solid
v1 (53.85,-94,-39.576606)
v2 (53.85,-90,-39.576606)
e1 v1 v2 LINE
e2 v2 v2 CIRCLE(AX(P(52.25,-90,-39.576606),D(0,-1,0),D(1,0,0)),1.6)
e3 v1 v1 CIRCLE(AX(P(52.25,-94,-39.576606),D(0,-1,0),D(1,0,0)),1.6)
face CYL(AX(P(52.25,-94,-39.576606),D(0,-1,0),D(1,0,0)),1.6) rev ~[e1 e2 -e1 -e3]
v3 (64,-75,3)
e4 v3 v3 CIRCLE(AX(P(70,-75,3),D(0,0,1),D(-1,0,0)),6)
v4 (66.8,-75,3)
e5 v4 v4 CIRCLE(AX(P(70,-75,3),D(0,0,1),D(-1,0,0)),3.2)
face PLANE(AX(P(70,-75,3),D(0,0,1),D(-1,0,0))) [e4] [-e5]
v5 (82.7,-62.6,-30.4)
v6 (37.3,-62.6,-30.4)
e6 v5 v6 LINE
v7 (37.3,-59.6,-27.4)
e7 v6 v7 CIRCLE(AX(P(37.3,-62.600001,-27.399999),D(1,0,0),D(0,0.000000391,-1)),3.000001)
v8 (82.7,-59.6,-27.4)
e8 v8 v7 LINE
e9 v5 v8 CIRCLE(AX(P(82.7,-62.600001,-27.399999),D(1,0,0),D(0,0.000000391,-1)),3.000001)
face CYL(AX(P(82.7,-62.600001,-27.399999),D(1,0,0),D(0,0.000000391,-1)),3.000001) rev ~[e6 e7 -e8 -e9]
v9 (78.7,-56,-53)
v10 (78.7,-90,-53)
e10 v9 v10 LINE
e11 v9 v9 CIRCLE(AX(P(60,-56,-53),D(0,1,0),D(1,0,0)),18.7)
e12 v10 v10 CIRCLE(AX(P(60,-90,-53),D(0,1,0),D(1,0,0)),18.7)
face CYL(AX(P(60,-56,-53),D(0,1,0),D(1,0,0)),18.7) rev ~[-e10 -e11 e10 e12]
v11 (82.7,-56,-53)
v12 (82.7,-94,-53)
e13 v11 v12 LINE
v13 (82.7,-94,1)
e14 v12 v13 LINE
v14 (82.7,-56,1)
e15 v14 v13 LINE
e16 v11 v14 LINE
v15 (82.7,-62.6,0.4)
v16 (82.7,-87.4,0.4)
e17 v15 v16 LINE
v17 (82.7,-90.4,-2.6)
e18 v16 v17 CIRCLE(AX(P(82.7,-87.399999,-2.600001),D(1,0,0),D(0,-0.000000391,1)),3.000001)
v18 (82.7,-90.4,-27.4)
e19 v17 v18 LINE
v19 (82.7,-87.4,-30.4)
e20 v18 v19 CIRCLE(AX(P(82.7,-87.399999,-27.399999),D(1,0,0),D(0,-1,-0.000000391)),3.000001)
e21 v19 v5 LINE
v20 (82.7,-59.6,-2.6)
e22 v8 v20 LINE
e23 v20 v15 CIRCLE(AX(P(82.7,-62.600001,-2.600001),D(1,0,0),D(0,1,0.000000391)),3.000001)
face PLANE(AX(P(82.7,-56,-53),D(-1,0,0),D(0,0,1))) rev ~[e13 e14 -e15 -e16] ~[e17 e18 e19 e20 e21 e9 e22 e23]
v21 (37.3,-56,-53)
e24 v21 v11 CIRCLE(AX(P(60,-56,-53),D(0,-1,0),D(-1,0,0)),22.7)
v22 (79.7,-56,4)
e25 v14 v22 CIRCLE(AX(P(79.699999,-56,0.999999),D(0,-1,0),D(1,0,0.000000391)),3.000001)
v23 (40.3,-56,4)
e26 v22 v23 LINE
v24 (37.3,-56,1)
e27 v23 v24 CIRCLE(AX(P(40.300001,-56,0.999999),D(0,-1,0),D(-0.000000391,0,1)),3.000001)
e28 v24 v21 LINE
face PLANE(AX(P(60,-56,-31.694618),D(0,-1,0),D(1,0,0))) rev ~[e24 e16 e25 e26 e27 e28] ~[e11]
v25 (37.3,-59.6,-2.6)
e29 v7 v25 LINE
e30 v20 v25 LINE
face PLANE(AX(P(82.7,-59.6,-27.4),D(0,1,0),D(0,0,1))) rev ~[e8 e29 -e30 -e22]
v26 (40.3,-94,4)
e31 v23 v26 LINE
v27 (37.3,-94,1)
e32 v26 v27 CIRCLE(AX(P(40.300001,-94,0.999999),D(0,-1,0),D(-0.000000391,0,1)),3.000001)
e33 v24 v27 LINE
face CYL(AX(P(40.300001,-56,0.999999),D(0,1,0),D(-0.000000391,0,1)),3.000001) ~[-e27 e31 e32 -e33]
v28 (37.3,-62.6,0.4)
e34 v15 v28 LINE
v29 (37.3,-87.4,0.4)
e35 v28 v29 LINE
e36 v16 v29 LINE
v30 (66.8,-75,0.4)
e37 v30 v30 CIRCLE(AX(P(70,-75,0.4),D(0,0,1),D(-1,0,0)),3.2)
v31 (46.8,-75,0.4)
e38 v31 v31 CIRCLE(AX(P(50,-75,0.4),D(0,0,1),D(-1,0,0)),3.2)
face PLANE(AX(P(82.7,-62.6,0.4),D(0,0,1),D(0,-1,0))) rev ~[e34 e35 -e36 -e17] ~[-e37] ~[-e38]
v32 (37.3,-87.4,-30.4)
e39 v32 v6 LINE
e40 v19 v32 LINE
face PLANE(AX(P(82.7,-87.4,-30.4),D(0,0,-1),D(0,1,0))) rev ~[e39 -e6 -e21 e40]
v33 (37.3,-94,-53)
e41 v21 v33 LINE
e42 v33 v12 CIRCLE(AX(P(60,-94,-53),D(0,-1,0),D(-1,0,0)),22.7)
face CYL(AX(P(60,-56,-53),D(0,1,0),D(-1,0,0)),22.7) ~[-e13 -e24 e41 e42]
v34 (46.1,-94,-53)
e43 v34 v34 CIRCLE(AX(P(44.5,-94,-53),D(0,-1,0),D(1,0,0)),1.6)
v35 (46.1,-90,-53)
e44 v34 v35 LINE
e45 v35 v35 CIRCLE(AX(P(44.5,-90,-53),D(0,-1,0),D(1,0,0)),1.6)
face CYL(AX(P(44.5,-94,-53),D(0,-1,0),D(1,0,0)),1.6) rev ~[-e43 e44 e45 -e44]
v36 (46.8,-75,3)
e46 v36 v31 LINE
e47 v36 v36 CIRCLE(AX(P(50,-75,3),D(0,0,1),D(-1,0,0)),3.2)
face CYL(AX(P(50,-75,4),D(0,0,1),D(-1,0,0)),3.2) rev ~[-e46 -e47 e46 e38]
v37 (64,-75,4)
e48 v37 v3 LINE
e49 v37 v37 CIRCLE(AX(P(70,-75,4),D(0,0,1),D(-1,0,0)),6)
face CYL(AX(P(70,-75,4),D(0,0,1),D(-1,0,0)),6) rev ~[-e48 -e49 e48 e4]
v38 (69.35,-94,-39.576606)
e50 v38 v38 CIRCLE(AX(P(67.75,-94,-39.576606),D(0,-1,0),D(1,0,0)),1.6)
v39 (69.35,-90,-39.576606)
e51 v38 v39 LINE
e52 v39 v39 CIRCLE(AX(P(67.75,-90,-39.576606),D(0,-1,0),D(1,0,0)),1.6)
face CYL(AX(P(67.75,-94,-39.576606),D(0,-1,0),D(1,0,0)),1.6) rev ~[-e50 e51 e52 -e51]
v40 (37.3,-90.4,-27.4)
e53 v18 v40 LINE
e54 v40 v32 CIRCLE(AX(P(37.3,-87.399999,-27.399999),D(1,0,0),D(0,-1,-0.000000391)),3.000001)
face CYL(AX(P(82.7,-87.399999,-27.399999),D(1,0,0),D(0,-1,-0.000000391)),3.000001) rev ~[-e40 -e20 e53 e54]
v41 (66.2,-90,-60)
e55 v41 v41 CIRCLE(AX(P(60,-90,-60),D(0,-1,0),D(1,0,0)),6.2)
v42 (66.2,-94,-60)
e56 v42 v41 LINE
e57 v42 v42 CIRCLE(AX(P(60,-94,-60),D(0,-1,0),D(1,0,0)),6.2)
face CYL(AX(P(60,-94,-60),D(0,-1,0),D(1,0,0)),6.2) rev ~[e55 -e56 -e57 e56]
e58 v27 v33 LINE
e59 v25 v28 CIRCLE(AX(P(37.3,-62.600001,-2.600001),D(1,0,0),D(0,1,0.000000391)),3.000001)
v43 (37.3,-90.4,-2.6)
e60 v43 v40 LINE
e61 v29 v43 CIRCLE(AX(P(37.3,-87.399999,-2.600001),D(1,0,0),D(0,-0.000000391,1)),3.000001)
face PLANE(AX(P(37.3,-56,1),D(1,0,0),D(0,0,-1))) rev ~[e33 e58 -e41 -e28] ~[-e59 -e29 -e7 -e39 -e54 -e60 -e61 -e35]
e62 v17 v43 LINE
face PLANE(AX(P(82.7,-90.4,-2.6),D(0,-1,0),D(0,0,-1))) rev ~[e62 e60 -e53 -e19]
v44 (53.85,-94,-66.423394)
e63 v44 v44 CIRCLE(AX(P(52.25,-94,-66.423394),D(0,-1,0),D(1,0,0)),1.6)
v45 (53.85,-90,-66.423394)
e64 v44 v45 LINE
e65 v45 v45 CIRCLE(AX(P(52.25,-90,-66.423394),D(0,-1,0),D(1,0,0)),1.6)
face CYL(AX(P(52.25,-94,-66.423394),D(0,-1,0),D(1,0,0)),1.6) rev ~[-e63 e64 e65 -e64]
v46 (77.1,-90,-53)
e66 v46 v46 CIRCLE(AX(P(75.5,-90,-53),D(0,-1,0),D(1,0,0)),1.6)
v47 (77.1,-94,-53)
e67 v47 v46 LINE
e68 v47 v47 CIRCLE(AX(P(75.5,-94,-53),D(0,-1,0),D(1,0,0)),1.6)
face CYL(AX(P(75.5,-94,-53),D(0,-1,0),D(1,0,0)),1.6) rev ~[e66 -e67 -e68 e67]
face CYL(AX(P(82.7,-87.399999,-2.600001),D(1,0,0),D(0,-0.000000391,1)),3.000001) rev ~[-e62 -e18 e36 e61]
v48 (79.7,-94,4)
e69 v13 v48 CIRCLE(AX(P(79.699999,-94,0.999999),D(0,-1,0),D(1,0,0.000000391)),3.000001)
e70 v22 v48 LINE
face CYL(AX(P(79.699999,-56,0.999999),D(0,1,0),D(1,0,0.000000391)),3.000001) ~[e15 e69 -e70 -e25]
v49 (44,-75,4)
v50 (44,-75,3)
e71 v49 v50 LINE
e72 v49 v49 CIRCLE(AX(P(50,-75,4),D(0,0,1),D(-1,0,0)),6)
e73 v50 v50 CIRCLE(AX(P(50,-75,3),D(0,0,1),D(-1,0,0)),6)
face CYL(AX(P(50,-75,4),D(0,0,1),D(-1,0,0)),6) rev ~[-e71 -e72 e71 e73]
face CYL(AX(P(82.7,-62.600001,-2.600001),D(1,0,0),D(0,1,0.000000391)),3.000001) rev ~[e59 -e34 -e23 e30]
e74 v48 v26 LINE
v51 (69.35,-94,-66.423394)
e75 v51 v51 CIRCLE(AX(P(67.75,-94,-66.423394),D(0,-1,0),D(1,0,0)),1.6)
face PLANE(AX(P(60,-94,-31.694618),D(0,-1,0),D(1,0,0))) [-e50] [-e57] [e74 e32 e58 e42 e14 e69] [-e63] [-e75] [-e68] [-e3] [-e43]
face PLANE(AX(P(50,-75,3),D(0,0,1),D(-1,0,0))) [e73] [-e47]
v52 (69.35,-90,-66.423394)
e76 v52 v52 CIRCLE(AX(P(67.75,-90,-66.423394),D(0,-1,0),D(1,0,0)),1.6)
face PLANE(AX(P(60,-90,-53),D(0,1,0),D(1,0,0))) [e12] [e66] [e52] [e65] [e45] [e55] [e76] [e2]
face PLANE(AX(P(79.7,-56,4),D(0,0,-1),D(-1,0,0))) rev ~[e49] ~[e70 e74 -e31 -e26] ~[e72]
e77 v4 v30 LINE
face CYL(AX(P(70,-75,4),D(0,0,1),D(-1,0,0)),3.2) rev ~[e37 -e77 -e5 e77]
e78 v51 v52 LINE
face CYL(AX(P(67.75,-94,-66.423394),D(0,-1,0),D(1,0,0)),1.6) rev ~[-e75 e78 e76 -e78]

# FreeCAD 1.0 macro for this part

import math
import FreeCAD as App
import Part
import Sketcher

doc = App.newDocument("Part")
body = doc.addObject("PartDesign::Body", "Body")

sketch1 = body.newObject("Sketcher::SketchObject", "Sketch")
sketch1.AttachmentSupport = (doc.getObject("XZ_Plane"), [""])
sketch1.MapMode = "FlatFace"
sketch1.AttachmentOffset = App.Placement(App.Vector(0, 0, 56), App.Rotation())
sketch1.addGeometry(Part.LineSegment(App.Vector(37.3, 1, 0), App.Vector(37.3, -53, 0)), False)
sketch1.addGeometry(Part.ArcOfCircle(Part.Circle(App.Vector(60, -53, 0), App.Vector(0, 0, 1), 22.7), math.radians(180), math.radians(360)), False)
sketch1.addGeometry(Part.LineSegment(App.Vector(82.7, -53, 0), App.Vector(82.7, 1, 0)), False)
sketch1.addGeometry(Part.ArcOfCircle(Part.Circle(App.Vector(79.7, 1, 0), App.Vector(0, 0, 1), 3), math.radians(0), math.radians(90)), False)
sketch1.addGeometry(Part.LineSegment(App.Vector(79.7, 4, 0), App.Vector(40.3, 4, 0)), False)
sketch1.addGeometry(Part.ArcOfCircle(Part.Circle(App.Vector(40.3, 1, 0), App.Vector(0, 0, 1), 3), math.radians(90), math.radians(180)), False)
sketch1.addConstraint(Sketcher.Constraint("Tangent", 0, 2, 1, 1))
sketch1.addConstraint(Sketcher.Constraint("Tangent", 1, 2, 2, 1))
sketch1.addConstraint(Sketcher.Constraint("Tangent", 2, 2, 3, 1))
sketch1.addConstraint(Sketcher.Constraint("Tangent", 3, 2, 4, 1))
sketch1.addConstraint(Sketcher.Constraint("Tangent", 4, 2, 5, 1))
sketch1.addConstraint(Sketcher.Constraint("Tangent", 5, 2, 0, 1))
sketch1.addConstraint(Sketcher.Constraint("Vertical", 0))
sketch1.addConstraint(Sketcher.Constraint("Vertical", 2))
sketch1.addConstraint(Sketcher.Constraint("Horizontal", 4))
sketch1.addConstraint(Sketcher.Constraint("Equal", 3, 5))
sketch1.addConstraint(Sketcher.Constraint("Radius", 3, 3.000001))
sketch1.addConstraint(Sketcher.Constraint("Radius", 1, 22.7))
sketch1.addConstraint(Sketcher.Constraint("DistanceY", 0, 2, 0, 1, 54.0))
sketch1.addConstraint(Sketcher.Constraint("DistanceX", -1, 1, 1, 3, 60.0))
sketch1.addConstraint(Sketcher.Constraint("DistanceY", 1, 3, -1, 1, 53.0))
pad1 = body.newObject("PartDesign::Pad", "Pad")
pad1.Profile = sketch1
pad1.Length = 38

sketch2 = body.newObject("Sketcher::SketchObject", "Sketch001")
sketch2.AttachmentSupport = (doc.getObject("XZ_Plane"), [""])
sketch2.MapMode = "FlatFace"
sketch2.AttachmentOffset = App.Placement(App.Vector(0, 0, 56), App.Rotation())
sketch2.addGeometry(Part.Circle(App.Vector(60, -53, 0), App.Vector(0, 0, 1), 19), False)
sketch2.addConstraint(Sketcher.Constraint("Diameter", 0, 37.4))
sketch2.addConstraint(Sketcher.Constraint("DistanceX", -1, 1, 0, 3, 60.0))
sketch2.addConstraint(Sketcher.Constraint("DistanceY", 0, 3, -1, 1, 53.0))
pocket1 = body.newObject("PartDesign::Pocket", "Pocket")
pocket1.Profile = sketch2
pocket1.Length = 34
pocket1.Reversed = True

sketch3 = body.newObject("Sketcher::SketchObject", "Sketch002")
sketch3.AttachmentSupport = (doc.getObject("XZ_Plane"), [""])
sketch3.MapMode = "FlatFace"
sketch3.AttachmentOffset = App.Placement(App.Vector(0, 0, 94), App.Rotation())
sketch3.addGeometry(Part.Circle(App.Vector(60, -60, 0), App.Vector(0, 0, 1), 6.2), False)
sketch3.addGeometry(Part.Circle(App.Vector(52.2, -39.6, 0), App.Vector(0, 0, 1), 1.6), False)
sketch3.addGeometry(Part.Circle(App.Vector(67.8, -39.6, 0), App.Vector(0, 0, 1), 1.6), False)
sketch3.addGeometry(Part.Circle(App.Vector(75.5, -53, 0), App.Vector(0, 0, 1), 1.6), False)
sketch3.addGeometry(Part.Circle(App.Vector(67.8, -66.4, 0), App.Vector(0, 0, 1), 1.6), False)
sketch3.addGeometry(Part.Circle(App.Vector(52.2, -66.4, 0), App.Vector(0, 0, 1), 1.6), False)
sketch3.addGeometry(Part.Circle(App.Vector(44.5, -53, 0), App.Vector(0, 0, 1), 1.6), False)
sketch3.addConstraint(Sketcher.Constraint("Equal", 1, 2))
sketch3.addConstraint(Sketcher.Constraint("Equal", 2, 3))
sketch3.addConstraint(Sketcher.Constraint("Equal", 3, 4))
sketch3.addConstraint(Sketcher.Constraint("Equal", 4, 5))
sketch3.addConstraint(Sketcher.Constraint("Equal", 5, 6))
sketch3.addConstraint(Sketcher.Constraint("Horizontal", 1, 3, 2, 3))
sketch3.addConstraint(Sketcher.Constraint("Horizontal", 4, 3, 5, 3))
sketch3.addConstraint(Sketcher.Constraint("Horizontal", 3, 3, 6, 3))
sketch3.addConstraint(Sketcher.Constraint("Vertical", 2, 3, 4, 3))
sketch3.addConstraint(Sketcher.Constraint("Vertical", 1, 3, 5, 3))
sketch3.addConstraint(Sketcher.Constraint("Diameter", 0, 12.4))
sketch3.addConstraint(Sketcher.Constraint("Diameter", 1, 3.2))
sketch3.addConstraint(Sketcher.Constraint("DistanceX", -1, 1, 0, 3, 60.0))
sketch3.addConstraint(Sketcher.Constraint("DistanceY", 0, 3, -1, 1, 60.0))
sketch3.addConstraint(Sketcher.Constraint("DistanceY", 3, 3, -1, 1, 53.0))
sketch3.addConstraint(Sketcher.Constraint("DistanceX", -1, 1, 3, 3, 75.5))
sketch3.addConstraint(Sketcher.Constraint("DistanceX", -1, 1, 6, 3, 44.5))
sketch3.addConstraint(Sketcher.Constraint("DistanceX", 1, 3, 2, 3, 15.5))
sketch3.addConstraint(Sketcher.Constraint("DistanceX", -1, 1, 1, 3, 52.25))
sketch3.addConstraint(Sketcher.Constraint("DistanceY", 4, 3, 2, 3, 26.846788))
sketch3.addConstraint(Sketcher.Constraint("DistanceY", 1, 3, -1, 1, 39.576606))
pocket2 = body.newObject("PartDesign::Pocket", "Pocket001")
pocket2.Profile = sketch3
pocket2.Length = 4

sketch4 = body.newObject("Sketcher::SketchObject", "Sketch003")
sketch4.AttachmentSupport = (doc.getObject("YZ_Plane"), [""])
sketch4.MapMode = "FlatFace"
sketch4.AttachmentOffset = App.Placement(App.Vector(0, 0, 82.7), App.Rotation())
sketch4.addGeometry(Part.LineSegment(App.Vector(-87.4, -30.4, 0), App.Vector(-62.6, -30.4, 0)), False)
sketch4.addGeometry(Part.ArcOfCircle(Part.Circle(App.Vector(-62.6, -27.4, 0), App.Vector(0, 0, 1), 3), math.radians(-90), math.radians(0)), False)
sketch4.addGeometry(Part.LineSegment(App.Vector(-59.6, -27.4, 0), App.Vector(-59.6, -2.6, 0)), False)
sketch4.addGeometry(Part.ArcOfCircle(Part.Circle(App.Vector(-62.6, -2.6, 0), App.Vector(0, 0, 1), 3), math.radians(0), math.radians(90)), False)
sketch4.addGeometry(Part.LineSegment(App.Vector(-62.6, 0.4, 0), App.Vector(-87.4, 0.4, 0)), False)
sketch4.addGeometry(Part.ArcOfCircle(Part.Circle(App.Vector(-87.4, -2.6, 0), App.Vector(0, 0, 1), 3), math.radians(90), math.radians(180)), False)
sketch4.addGeometry(Part.LineSegment(App.Vector(-90.4, -2.6, 0), App.Vector(-90.4, -27.4, 0)), False)
sketch4.addGeometry(Part.ArcOfCircle(Part.Circle(App.Vector(-87.4, -27.4, 0), App.Vector(0, 0, 1), 3), math.radians(-180), math.radians(-90)), False)
sketch4.addConstraint(Sketcher.Constraint("Tangent", 0, 2, 1, 1))
sketch4.addConstraint(Sketcher.Constraint("Tangent", 1, 2, 2, 1))
sketch4.addConstraint(Sketcher.Constraint("Tangent", 2, 2, 3, 1))
sketch4.addConstraint(Sketcher.Constraint("Tangent", 3, 2, 4, 1))
sketch4.addConstraint(Sketcher.Constraint("Tangent", 4, 2, 5, 1))
sketch4.addConstraint(Sketcher.Constraint("Tangent", 5, 2, 6, 1))
sketch4.addConstraint(Sketcher.Constraint("Tangent", 6, 2, 7, 1))
sketch4.addConstraint(Sketcher.Constraint("Tangent", 7, 2, 0, 1))
sketch4.addConstraint(Sketcher.Constraint("Horizontal", 0))
sketch4.addConstraint(Sketcher.Constraint("Vertical", 2))
sketch4.addConstraint(Sketcher.Constraint("Horizontal", 4))
sketch4.addConstraint(Sketcher.Constraint("Vertical", 6))
sketch4.addConstraint(Sketcher.Constraint("Equal", 1, 3))
sketch4.addConstraint(Sketcher.Constraint("Equal", 3, 5))
sketch4.addConstraint(Sketcher.Constraint("Equal", 5, 7))
sketch4.addConstraint(Sketcher.Constraint("Equal", 4, 2))
sketch4.addConstraint(Sketcher.Constraint("Radius", 1, 3.000001))
sketch4.addConstraint(Sketcher.Constraint("DistanceX", 0, 1, 0, 2, 24.8))
sketch4.addConstraint(Sketcher.Constraint("DistanceX", 1, 3, -1, 1, 62.600001))
sketch4.addConstraint(Sketcher.Constraint("DistanceY", 1, 3, -1, 1, 27.399999))
pocket3 = body.newObject("PartDesign::Pocket", "Pocket002")
pocket3.Profile = sketch4
pocket3.Type = "ThroughAll"

sketch5 = body.newObject("Sketcher::SketchObject", "Sketch004")
sketch5.AttachmentSupport = (doc.getObject("XY_Plane"), [""])
sketch5.MapMode = "FlatFace"
sketch5.AttachmentOffset = App.Placement(App.Vector(0, 0, 4), App.Rotation())
sketch5.addGeometry(Part.Circle(App.Vector(70, -75, 0), App.Vector(0, 0, 1), 3.2), False)
sketch5.addGeometry(Part.Circle(App.Vector(50, -75, 0), App.Vector(0, 0, 1), 3.2), False)
sketch5.addConstraint(Sketcher.Constraint("Equal", 0, 1))
sketch5.addConstraint(Sketcher.Constraint("Horizontal", 0, 3, 1, 3))
sketch5.addConstraint(Sketcher.Constraint("Diameter", 0, 6.4))
sketch5.addConstraint(Sketcher.Constraint("DistanceX", -1, 1, 0, 3, 70.0))
sketch5.addConstraint(Sketcher.Constraint("DistanceY", 0, 3, -1, 1, 75.0))
sketch5.addConstraint(Sketcher.Constraint("DistanceX", -1, 1, 1, 3, 50.0))
pocket4 = body.newObject("PartDesign::Pocket", "Pocket003")
pocket4.Profile = sketch5
pocket4.Length = 3.6

sketch6 = body.newObject("Sketcher::SketchObject", "Sketch005")
sketch6.AttachmentSupport = (doc.getObject("XY_Plane"), [""])
sketch6.MapMode = "FlatFace"
sketch6.AttachmentOffset = App.Placement(App.Vector(0, 0, 4), App.Rotation())
sketch6.addGeometry(Part.Circle(App.Vector(70, -75, 0), App.Vector(0, 0, 1), 6), False)
sketch6.addGeometry(Part.Circle(App.Vector(50, -75, 0), App.Vector(0, 0, 1), 6), False)
sketch6.addConstraint(Sketcher.Constraint("Equal", 0, 1))
sketch6.addConstraint(Sketcher.Constraint("Horizontal", 0, 3, 1, 3))
sketch6.addConstraint(Sketcher.Constraint("Diameter", 0, 12.0))
sketch6.addConstraint(Sketcher.Constraint("DistanceX", -1, 1, 0, 3, 70.0))
sketch6.addConstraint(Sketcher.Constraint("DistanceY", 0, 3, -1, 1, 75.0))
sketch6.addConstraint(Sketcher.Constraint("DistanceX", -1, 1, 1, 3, 50.0))
pocket5 = body.newObject("PartDesign::Pocket", "Pocket004")
pocket5.Profile = sketch6
pocket5.Length = 1

doc.recompute()
